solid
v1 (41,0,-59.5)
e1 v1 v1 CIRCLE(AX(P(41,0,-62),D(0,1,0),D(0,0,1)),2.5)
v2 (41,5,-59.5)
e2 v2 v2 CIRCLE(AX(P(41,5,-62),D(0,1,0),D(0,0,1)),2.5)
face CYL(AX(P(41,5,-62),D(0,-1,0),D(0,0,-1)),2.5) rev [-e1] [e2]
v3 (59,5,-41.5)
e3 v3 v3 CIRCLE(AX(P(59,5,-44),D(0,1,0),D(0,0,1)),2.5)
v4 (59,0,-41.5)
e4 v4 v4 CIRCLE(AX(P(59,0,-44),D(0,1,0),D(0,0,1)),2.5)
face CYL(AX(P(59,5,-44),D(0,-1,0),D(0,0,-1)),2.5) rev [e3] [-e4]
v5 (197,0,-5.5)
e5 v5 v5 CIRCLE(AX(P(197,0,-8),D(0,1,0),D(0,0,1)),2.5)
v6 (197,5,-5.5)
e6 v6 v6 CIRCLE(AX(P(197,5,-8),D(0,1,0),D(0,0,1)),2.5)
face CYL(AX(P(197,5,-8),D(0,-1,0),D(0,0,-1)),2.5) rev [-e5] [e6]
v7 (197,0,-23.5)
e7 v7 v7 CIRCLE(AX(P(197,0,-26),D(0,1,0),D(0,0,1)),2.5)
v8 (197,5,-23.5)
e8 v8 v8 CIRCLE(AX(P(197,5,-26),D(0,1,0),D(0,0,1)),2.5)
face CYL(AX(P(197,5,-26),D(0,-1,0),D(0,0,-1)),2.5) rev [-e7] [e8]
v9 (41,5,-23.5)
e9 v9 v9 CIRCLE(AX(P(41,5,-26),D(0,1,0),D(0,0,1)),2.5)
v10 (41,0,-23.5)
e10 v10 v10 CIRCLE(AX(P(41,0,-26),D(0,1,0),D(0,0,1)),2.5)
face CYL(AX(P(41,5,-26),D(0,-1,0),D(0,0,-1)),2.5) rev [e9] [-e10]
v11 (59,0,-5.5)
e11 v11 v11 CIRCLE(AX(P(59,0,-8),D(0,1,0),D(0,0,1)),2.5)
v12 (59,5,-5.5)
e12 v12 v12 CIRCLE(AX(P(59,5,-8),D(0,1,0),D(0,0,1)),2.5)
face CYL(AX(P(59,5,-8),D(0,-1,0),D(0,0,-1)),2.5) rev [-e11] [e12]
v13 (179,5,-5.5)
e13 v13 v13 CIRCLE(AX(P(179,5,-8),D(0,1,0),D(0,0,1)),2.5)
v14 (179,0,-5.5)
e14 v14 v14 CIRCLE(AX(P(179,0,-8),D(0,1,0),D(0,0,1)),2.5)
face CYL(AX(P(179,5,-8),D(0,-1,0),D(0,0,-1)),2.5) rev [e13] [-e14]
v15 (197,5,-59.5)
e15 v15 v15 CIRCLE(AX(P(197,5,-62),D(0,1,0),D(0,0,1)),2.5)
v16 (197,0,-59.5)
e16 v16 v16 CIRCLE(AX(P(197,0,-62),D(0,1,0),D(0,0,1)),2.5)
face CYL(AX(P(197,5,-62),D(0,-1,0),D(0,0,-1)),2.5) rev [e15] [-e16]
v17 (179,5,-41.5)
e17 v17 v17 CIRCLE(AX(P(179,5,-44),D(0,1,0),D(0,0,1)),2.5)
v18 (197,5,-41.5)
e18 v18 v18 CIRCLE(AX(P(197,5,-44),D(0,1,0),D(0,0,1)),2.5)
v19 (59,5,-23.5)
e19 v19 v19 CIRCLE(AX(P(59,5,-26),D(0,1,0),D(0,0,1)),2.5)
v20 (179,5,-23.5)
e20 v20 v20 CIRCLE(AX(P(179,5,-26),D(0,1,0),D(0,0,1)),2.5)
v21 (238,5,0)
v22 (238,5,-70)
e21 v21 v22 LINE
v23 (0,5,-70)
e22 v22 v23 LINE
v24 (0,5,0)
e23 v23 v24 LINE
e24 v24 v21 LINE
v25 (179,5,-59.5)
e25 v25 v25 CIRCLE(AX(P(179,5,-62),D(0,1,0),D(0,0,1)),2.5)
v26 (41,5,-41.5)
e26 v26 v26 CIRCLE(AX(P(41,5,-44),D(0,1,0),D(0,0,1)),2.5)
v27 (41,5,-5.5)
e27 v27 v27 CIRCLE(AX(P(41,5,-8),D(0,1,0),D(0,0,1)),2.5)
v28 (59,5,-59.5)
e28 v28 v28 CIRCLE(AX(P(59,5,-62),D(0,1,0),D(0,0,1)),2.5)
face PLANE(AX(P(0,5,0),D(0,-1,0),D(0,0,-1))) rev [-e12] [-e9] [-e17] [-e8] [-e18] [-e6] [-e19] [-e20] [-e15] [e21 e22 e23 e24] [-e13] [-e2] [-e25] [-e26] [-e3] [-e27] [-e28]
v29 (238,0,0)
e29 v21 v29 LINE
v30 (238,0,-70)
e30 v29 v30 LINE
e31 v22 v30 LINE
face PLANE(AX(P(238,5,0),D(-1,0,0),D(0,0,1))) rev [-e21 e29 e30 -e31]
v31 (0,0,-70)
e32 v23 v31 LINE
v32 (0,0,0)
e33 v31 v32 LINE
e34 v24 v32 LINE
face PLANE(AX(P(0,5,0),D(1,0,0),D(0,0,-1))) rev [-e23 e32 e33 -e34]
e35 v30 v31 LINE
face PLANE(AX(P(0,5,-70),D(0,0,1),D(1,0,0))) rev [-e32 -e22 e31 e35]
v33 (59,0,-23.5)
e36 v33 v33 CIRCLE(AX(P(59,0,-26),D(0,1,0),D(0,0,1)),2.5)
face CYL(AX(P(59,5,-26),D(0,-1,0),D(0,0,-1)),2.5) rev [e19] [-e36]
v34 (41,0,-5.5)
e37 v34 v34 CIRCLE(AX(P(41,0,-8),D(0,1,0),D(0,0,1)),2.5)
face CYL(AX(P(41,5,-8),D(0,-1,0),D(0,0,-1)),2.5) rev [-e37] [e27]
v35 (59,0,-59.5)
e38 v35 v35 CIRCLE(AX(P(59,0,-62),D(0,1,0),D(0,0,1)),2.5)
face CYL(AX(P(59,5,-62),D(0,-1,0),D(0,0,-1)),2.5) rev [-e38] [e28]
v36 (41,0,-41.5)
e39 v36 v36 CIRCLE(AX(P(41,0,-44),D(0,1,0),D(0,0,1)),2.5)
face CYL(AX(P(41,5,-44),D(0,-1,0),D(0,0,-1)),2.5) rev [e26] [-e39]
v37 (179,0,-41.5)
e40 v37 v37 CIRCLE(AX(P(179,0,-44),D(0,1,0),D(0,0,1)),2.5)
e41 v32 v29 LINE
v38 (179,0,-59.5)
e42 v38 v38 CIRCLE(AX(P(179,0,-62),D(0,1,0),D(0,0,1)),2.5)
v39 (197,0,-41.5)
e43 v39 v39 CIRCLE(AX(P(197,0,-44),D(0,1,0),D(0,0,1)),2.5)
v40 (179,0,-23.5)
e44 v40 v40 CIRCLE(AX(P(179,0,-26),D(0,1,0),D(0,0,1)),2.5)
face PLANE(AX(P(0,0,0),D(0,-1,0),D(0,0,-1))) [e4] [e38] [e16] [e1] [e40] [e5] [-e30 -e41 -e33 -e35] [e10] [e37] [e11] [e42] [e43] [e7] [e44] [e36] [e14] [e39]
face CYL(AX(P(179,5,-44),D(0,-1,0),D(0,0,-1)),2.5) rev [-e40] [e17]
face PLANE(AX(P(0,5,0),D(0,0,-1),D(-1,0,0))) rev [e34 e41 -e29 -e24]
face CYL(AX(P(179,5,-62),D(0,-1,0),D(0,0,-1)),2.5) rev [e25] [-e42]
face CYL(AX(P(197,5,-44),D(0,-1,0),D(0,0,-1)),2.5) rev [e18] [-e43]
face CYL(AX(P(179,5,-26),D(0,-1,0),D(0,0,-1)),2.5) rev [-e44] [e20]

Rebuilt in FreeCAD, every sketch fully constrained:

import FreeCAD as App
import Part
import Sketcher
from FreeCAD import Vector


def add_polygon(sketch, points):
    """Adds a closed chain of lines whose ends are joined by coincident constraints."""
    first, n = sketch.GeometryCount, len(points)
    for a, b in zip(points, points[1:] + points[:1]):
        sketch.addGeometry(Part.LineSegment(App.Vector(*a, 0), App.Vector(*b, 0)), False)
    for i in range(n):
        sketch.addConstraint(Sketcher.Constraint("Coincident", first + i, 2, first + (i + 1) % n, 1))

doc = App.newDocument("Part")
body = doc.addObject("PartDesign::Body", "Body")

# Sketch on XZ plane
sketch1 = body.newObject("Sketcher::SketchObject", "Sketch")
sketch1.AttachmentSupport = (doc.getObject("XZ_Plane"), [""])
sketch1.MapMode = "FlatFace"
add_polygon(sketch1, [(0, -70), (0, 0), (238, 0), (238, -70)])  # lines 0-3
sketch1.addGeometry(Part.Circle(Vector(41, -8, 0), Vector(0, 0, 1), 2.5), False)  # 4
sketch1.addGeometry(Part.Circle(Vector(59, -8, 0), Vector(0, 0, 1), 2.5), False)  # 5
sketch1.addGeometry(Part.Circle(Vector(41, -26, 0), Vector(0, 0, 1), 2.5), False)  # 6
sketch1.addGeometry(Part.Circle(Vector(59, -26, 0), Vector(0, 0, 1), 2.5), False)  # 7
sketch1.addGeometry(Part.Circle(Vector(179, -8, 0), Vector(0, 0, 1), 2.5), False)  # 8
sketch1.addGeometry(Part.Circle(Vector(197, -8, 0), Vector(0, 0, 1), 2.5), False)  # 9
sketch1.addGeometry(Part.Circle(Vector(179, -26, 0), Vector(0, 0, 1), 2.5), False)  # 10
sketch1.addGeometry(Part.Circle(Vector(197, -26, 0), Vector(0, 0, 1), 2.5), False)  # 11
sketch1.addGeometry(Part.Circle(Vector(41, -44, 0), Vector(0, 0, 1), 2.5), False)  # 12
sketch1.addGeometry(Part.Circle(Vector(59, -44, 0), Vector(0, 0, 1), 2.5), False)  # 13
sketch1.addGeometry(Part.Circle(Vector(41, -62, 0), Vector(0, 0, 1), 2.5), False)  # 14
sketch1.addGeometry(Part.Circle(Vector(59, -62, 0), Vector(0, 0, 1), 2.5), False)  # 15
sketch1.addGeometry(Part.Circle(Vector(179, -44, 0), Vector(0, 0, 1), 2.5), False)  # 16
sketch1.addGeometry(Part.Circle(Vector(197, -44, 0), Vector(0, 0, 1), 2.5), False)  # 17
sketch1.addGeometry(Part.Circle(Vector(179, -62, 0), Vector(0, 0, 1), 2.5), False)  # 18
sketch1.addGeometry(Part.Circle(Vector(197, -62, 0), Vector(0, 0, 1), 2.5), False)  # 19
sketch1.addConstraint([
    Sketcher.Constraint("Vertical", 0),
    Sketcher.Constraint("Horizontal", 1),
    Sketcher.Constraint("Vertical", 2),
    Sketcher.Constraint("Horizontal", 3),
    Sketcher.Constraint("Coincident", 0, 2, -1, 1),
    Sketcher.Constraint("Equal", 4, 5),
    Sketcher.Constraint("Equal", 5, 6),
    Sketcher.Constraint("Equal", 6, 7),
    Sketcher.Constraint("Equal", 7, 8),
    Sketcher.Constraint("Equal", 8, 9),
    Sketcher.Constraint("Equal", 9, 10),
    Sketcher.Constraint("Equal", 10, 11),
    Sketcher.Constraint("Equal", 11, 12),
    Sketcher.Constraint("Equal", 12, 13),
    Sketcher.Constraint("Equal", 13, 14),
    Sketcher.Constraint("Equal", 14, 15),
    Sketcher.Constraint("Equal", 15, 16),
    Sketcher.Constraint("Equal", 16, 17),
    Sketcher.Constraint("Equal", 17, 18),
    Sketcher.Constraint("Equal", 18, 19),
    Sketcher.Constraint("Horizontal", 4, 3, 5, 3),
    Sketcher.Constraint("Horizontal", 6, 3, 7, 3),
    Sketcher.Constraint("Horizontal", 5, 3, 8, 3),
    Sketcher.Constraint("Horizontal", 8, 3, 9, 3),
    Sketcher.Constraint("Horizontal", 7, 3, 10, 3),
    Sketcher.Constraint("Horizontal", 10, 3, 11, 3),
    Sketcher.Constraint("Horizontal", 12, 3, 13, 3),
    Sketcher.Constraint("Horizontal", 14, 3, 15, 3),
    Sketcher.Constraint("Horizontal", 13, 3, 16, 3),
    Sketcher.Constraint("Horizontal", 16, 3, 17, 3),
    Sketcher.Constraint("Horizontal", 15, 3, 18, 3),
    Sketcher.Constraint("Horizontal", 18, 3, 19, 3),
    Sketcher.Constraint("Vertical", 4, 3, 6, 3),
    Sketcher.Constraint("Vertical", 5, 3, 7, 3),
    Sketcher.Constraint("Vertical", 8, 3, 10, 3),
    Sketcher.Constraint("Vertical", 9, 3, 11, 3),
    Sketcher.Constraint("Vertical", 6, 3, 12, 3),
    Sketcher.Constraint("Vertical", 7, 3, 13, 3),
    Sketcher.Constraint("Vertical", 12, 3, 14, 3),
    Sketcher.Constraint("Vertical", 13, 3, 15, 3),
    Sketcher.Constraint("Vertical", 10, 3, 16, 3),
    Sketcher.Constraint("Vertical", 11, 3, 17, 3),
    Sketcher.Constraint("Vertical", 16, 3, 18, 3),
    Sketcher.Constraint("Vertical", 17, 3, 19, 3),
    Sketcher.Constraint("Diameter", 4, 5.0),
    Sketcher.Constraint("DistanceX", 1, 1, 1, 2, 238.0),
    Sketcher.Constraint("DistanceY", 0, 1, 0, 2, 70.0),
    Sketcher.Constraint("DistanceX", -1, 1, 4, 3, 41.0),
    Sketcher.Constraint("DistanceY", 4, 3, -1, 1, 8.0),
    Sketcher.Constraint("DistanceX", -1, 1, 5, 3, 59.0),
    Sketcher.Constraint("DistanceY", 6, 3, -1, 1, 26.0),
    Sketcher.Constraint("DistanceX", -1, 1, 8, 3, 179.0),
    Sketcher.Constraint("DistanceX", -1, 1, 9, 3, 197.0),
    Sketcher.Constraint("DistanceY", 12, 3, -1, 1, 44.0),
    Sketcher.Constraint("DistanceY", 14, 3, -1, 1, 62.0),
])
pad1 = body.newObject("PartDesign::Pad", "Pad")
pad1.Profile = sketch1
pad1.Length = 5
pad1.Reversed = True

doc.recompute()
